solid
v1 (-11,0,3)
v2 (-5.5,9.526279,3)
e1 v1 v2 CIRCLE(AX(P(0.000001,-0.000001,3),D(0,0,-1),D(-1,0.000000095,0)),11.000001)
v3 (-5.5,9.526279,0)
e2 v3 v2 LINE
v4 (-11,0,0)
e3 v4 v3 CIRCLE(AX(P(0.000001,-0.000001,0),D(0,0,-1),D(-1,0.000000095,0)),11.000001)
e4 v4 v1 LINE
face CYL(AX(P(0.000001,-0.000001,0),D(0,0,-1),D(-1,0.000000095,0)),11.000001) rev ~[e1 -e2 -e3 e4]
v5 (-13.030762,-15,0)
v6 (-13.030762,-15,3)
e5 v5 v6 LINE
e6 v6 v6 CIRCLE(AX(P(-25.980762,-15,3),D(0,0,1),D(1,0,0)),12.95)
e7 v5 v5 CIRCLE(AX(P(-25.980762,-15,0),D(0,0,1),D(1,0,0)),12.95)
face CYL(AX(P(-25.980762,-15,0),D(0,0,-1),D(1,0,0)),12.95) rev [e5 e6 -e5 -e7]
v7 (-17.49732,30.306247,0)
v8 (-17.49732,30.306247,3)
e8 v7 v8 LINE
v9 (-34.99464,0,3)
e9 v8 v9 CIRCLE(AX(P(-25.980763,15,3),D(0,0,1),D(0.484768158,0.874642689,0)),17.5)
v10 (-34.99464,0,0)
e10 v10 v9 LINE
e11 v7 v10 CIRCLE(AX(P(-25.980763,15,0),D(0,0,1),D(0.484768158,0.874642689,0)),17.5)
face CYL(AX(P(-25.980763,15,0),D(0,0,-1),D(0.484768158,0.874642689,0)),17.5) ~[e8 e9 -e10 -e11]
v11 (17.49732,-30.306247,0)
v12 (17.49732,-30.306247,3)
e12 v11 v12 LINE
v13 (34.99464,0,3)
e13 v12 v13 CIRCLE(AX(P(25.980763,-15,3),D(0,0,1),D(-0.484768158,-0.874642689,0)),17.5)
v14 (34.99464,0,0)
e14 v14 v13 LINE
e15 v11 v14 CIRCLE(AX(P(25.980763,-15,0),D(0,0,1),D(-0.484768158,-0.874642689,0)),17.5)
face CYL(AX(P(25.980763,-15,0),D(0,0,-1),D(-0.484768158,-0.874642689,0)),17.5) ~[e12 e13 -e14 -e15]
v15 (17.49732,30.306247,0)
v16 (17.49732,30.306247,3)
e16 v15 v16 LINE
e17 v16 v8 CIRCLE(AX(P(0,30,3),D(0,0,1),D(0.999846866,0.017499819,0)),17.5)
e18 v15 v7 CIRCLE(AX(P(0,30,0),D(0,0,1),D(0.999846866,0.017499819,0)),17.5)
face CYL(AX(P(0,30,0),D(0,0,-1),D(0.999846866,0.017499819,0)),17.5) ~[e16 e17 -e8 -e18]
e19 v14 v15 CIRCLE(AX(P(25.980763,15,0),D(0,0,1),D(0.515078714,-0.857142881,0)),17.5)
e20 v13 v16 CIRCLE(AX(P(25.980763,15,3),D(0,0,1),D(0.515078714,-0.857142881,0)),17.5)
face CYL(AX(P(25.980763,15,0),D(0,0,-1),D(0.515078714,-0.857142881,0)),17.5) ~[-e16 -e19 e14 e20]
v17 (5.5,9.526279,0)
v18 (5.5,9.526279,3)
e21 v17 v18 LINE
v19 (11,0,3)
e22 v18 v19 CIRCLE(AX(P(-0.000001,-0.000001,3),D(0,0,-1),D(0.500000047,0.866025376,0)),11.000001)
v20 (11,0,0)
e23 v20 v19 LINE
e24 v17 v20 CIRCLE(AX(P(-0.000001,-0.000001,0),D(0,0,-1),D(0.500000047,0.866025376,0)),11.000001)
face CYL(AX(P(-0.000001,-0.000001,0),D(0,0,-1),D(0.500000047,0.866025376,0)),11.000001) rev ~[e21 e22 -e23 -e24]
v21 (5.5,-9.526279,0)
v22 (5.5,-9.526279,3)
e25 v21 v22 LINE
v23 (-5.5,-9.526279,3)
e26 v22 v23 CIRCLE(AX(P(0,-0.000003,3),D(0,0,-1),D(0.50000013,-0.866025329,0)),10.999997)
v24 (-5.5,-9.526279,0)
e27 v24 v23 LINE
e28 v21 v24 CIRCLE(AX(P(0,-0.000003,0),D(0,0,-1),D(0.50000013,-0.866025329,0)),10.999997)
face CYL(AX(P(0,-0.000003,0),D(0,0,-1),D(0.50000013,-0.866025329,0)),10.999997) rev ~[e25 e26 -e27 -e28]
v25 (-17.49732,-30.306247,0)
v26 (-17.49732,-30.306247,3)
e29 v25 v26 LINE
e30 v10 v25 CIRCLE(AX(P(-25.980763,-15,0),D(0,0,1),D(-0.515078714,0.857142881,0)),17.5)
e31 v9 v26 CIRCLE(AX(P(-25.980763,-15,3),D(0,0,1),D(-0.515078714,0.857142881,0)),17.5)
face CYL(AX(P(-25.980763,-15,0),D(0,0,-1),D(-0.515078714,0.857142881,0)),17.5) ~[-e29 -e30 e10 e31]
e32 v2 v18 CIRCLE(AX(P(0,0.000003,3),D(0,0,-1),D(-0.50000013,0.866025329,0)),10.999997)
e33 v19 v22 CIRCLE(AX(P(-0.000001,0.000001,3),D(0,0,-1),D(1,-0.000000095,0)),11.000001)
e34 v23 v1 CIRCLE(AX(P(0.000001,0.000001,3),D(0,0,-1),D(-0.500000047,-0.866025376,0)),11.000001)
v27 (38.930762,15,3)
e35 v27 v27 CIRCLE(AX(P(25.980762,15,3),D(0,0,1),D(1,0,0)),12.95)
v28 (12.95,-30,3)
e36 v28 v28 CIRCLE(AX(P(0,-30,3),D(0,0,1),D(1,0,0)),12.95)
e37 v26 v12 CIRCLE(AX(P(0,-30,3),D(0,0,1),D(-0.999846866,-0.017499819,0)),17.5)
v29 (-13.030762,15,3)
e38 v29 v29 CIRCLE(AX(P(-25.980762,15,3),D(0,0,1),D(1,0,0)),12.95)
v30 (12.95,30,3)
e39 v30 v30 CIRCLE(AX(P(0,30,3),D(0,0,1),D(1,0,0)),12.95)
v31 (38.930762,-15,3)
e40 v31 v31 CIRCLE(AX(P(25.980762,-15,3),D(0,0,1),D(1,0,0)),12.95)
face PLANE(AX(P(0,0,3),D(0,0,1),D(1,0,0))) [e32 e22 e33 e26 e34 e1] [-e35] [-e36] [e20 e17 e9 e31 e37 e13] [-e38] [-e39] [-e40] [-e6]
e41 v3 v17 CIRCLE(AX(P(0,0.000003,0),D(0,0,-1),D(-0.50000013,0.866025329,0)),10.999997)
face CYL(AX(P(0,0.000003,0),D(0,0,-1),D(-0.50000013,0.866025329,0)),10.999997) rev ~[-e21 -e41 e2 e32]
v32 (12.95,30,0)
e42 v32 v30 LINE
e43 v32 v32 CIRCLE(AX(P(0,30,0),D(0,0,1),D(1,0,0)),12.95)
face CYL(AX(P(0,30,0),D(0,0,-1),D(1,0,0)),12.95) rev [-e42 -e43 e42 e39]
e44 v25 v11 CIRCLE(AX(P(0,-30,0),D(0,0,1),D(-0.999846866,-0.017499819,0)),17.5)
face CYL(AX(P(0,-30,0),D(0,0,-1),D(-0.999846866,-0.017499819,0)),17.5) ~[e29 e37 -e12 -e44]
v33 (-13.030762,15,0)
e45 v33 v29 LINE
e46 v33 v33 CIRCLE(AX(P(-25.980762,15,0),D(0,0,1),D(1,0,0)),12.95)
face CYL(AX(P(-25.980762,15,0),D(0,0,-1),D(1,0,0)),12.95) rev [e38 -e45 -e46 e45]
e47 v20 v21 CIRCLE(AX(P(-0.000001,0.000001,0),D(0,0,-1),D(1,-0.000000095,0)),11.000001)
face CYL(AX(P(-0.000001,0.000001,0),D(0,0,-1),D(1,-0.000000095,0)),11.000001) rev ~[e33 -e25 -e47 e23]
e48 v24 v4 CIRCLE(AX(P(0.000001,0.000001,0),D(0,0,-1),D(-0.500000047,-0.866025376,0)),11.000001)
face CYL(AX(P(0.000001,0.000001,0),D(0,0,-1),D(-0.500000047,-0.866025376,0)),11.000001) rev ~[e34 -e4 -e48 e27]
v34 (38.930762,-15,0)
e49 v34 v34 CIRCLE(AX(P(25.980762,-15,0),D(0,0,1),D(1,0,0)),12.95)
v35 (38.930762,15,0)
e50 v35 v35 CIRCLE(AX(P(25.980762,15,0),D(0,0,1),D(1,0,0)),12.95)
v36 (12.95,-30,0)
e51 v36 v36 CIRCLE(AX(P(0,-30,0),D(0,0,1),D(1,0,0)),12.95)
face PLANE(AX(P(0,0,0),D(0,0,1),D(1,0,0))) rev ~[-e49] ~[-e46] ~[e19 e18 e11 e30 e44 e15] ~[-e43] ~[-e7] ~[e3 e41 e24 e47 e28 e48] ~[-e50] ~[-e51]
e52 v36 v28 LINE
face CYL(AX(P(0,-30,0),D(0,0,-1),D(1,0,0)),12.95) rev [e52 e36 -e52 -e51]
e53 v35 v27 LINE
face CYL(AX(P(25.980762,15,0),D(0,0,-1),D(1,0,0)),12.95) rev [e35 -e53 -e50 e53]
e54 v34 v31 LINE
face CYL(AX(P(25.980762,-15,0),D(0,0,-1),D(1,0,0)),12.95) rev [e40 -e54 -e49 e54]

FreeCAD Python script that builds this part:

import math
import FreeCAD as App
import Part
import Sketcher

doc = App.newDocument("Part")
body = doc.addObject("PartDesign::Body", "Body")

# Sketch on XY plane
sketch1 = doc.addObject("Sketcher::SketchObject", "Sketch")
body.addObject(sketch1)
sketch1.AttachmentSupport = (doc.XY_Plane, [""])
sketch1.MapMode = "FlatFace"
sketch1.addGeometry(Part.ArcOfCircle(Part.Circle(App.Vector(26, 15, 0), App.Vector(0, 0, 1), 17), math.radians(-59), math.radians(119)), False)
sketch1.addGeometry(Part.ArcOfCircle(Part.Circle(App.Vector(0, 30, 0), App.Vector(0, 0, 1), 17), math.radians(1), math.radians(179)), False)
sketch1.addGeometry(Part.ArcOfCircle(Part.Circle(App.Vector(-26, 15, 0), App.Vector(0, 0, 1), 17), math.radians(61), math.radians(239)), False)
sketch1.addGeometry(Part.ArcOfCircle(Part.Circle(App.Vector(-26, -15, 0), App.Vector(0, 0, 1), 17), math.radians(121), math.radians(299)), False)
sketch1.addGeometry(Part.ArcOfCircle(Part.Circle(App.Vector(0, -30, 0), App.Vector(0, 0, 1), 17), math.radians(-179), math.radians(-1)), False)
sketch1.addGeometry(Part.ArcOfCircle(Part.Circle(App.Vector(26, -15, 0), App.Vector(0, 0, 1), 17), math.radians(-119), math.radians(59)), False)
sketch1.addGeometry(Part.Circle(App.Vector(0, -30, 0), App.Vector(0, 0, 1), 13), False)
sketch1.addGeometry(Part.Circle(App.Vector(-26, -15, 0), App.Vector(0, 0, 1), 13), False)
sketch1.addGeometry(Part.Circle(App.Vector(26, -15, 0), App.Vector(0, 0, 1), 13), False)
sketch1.addGeometry(Part.Circle(App.Vector(-26, 15, 0), App.Vector(0, 0, 1), 13), False)
sketch1.addGeometry(Part.ArcOfCircle(Part.Circle(App.Vector(0, 0, 0), App.Vector(0, 0, 1), 11), math.radians(120), math.radians(180)), False)
sketch1.addGeometry(Part.ArcOfCircle(Part.Circle(App.Vector(0, 0, 0), App.Vector(0, 0, 1), 11), math.radians(60), math.radians(120)), False)
sketch1.addGeometry(Part.ArcOfCircle(Part.Circle(App.Vector(0, 0, 0), App.Vector(0, 0, 1), 11), math.radians(0), math.radians(60)), False)
sketch1.addGeometry(Part.ArcOfCircle(Part.Circle(App.Vector(0, 0, 0), App.Vector(0, 0, 1), 11), math.radians(-60), math.radians(0)), False)
sketch1.addGeometry(Part.ArcOfCircle(Part.Circle(App.Vector(0, 0, 0), App.Vector(0, 0, 1), 11), math.radians(-120), math.radians(-60)), False)
sketch1.addGeometry(Part.ArcOfCircle(Part.Circle(App.Vector(0, 0, 0), App.Vector(0, 0, 1), 11), math.radians(-180), math.radians(-120)), False)
sketch1.addGeometry(Part.Circle(App.Vector(0, 30, 0), App.Vector(0, 0, 1), 13), False)
sketch1.addGeometry(Part.Circle(App.Vector(26, 15, 0), App.Vector(0, 0, 1), 13), False)
sketch1.addConstraint(Sketcher.Constraint("Coincident", 0, 2, 1, 1))
sketch1.addConstraint(Sketcher.Constraint("Coincident", 1, 2, 2, 1))
sketch1.addConstraint(Sketcher.Constraint("Coincident", 2, 2, 3, 1))
sketch1.addConstraint(Sketcher.Constraint("Coincident", 3, 2, 4, 1))
sketch1.addConstraint(Sketcher.Constraint("Coincident", 4, 2, 5, 1))
sketch1.addConstraint(Sketcher.Constraint("Coincident", 5, 2, 0, 1))
sketch1.addConstraint(Sketcher.Constraint("Tangent", 10, 1, 11, 2))
sketch1.addConstraint(Sketcher.Constraint("Tangent", 11, 1, 12, 2))
sketch1.addConstraint(Sketcher.Constraint("Tangent", 12, 1, 13, 2))
sketch1.addConstraint(Sketcher.Constraint("Tangent", 13, 1, 14, 2))
sketch1.addConstraint(Sketcher.Constraint("Tangent", 14, 1, 15, 2))
sketch1.addConstraint(Sketcher.Constraint("Tangent", 15, 1, 10, 2))
sketch1.addConstraint(Sketcher.Constraint("Coincident", 10, 3, -1, 1))
sketch1.addConstraint(Sketcher.Constraint("Coincident", 12, 3, -1, 1))
sketch1.addConstraint(Sketcher.Constraint("Coincident", 6, 3, 4, 3))
sketch1.addConstraint(Sketcher.Constraint("Coincident", 7, 3, 3, 3))
sketch1.addConstraint(Sketcher.Constraint("Coincident", 8, 3, 5, 3))
sketch1.addConstraint(Sketcher.Constraint("Coincident", 9, 3, 2, 3))
sketch1.addConstraint(Sketcher.Constraint("Coincident", 16, 3, 1, 3))
sketch1.addConstraint(Sketcher.Constraint("Coincident", 17, 3, 0, 3))
sketch1.addConstraint(Sketcher.Constraint("Equal", 0, 1))
sketch1.addConstraint(Sketcher.Constraint("Equal", 1, 2))
sketch1.addConstraint(Sketcher.Constraint("Equal", 2, 3))
sketch1.addConstraint(Sketcher.Constraint("Equal", 3, 4))
sketch1.addConstraint(Sketcher.Constraint("Equal", 4, 5))
sketch1.addConstraint(Sketcher.Constraint("Equal", 6, 7))
sketch1.addConstraint(Sketcher.Constraint("Equal", 7, 8))
sketch1.addConstraint(Sketcher.Constraint("Equal", 8, 9))
sketch1.addConstraint(Sketcher.Constraint("Equal", 12, 13))
sketch1.addConstraint(Sketcher.Constraint("Equal", 9, 16))
sketch1.addConstraint(Sketcher.Constraint("Equal", 16, 17))
sketch1.addConstraint(Sketcher.Constraint("Symmetric", 0, 3, 3, 3, -1, 1))
sketch1.addConstraint(Sketcher.Constraint("Symmetric", 1, 3, 4, 3, -1, 1))
sketch1.addConstraint(Sketcher.Constraint("Symmetric", 2, 3, 5, 3, -1, 1))
sketch1.addConstraint(Sketcher.Constraint("Symmetric", 0, 3, 2, 3, -2))
sketch1.addConstraint(Sketcher.Constraint("PointOnObject", 1, 3, -2))
sketch1.addConstraint(Sketcher.Constraint("PointOnObject", 12, 1, -1))
sketch1.addConstraint(Sketcher.Constraint("PointOnObject", 15, 1, -1))
sketch1.addConstraint(Sketcher.Constraint("Horizontal", 10, 1, 11, 1))
sketch1.addConstraint(Sketcher.Constraint("Horizontal", 13, 1, 14, 1))
sketch1.addConstraint(Sketcher.Constraint("Vertical", 11, 1, 13, 1))
sketch1.addConstraint(Sketcher.Constraint("Radius", 10, 11.000001))
sketch1.addConstraint(Sketcher.Constraint("Diameter", 6, 25.9))
sketch1.addConstraint(Sketcher.Constraint("Radius", 0, 17.5))
sketch1.addConstraint(Sketcher.Constraint("DistanceY", -1, 1, 0, 3, 15.0))
sketch1.addConstraint(Sketcher.Constraint("DistanceY", -1, 1, 1, 3, 30.0))
sketch1.addConstraint(Sketcher.Constraint("DistanceX", 10, 1, 11, 1, 11.0))
sketch1.addConstraint(Sketcher.Constraint("DistanceX", 7, 3, -1, 1, 25.980762))
pad1 = doc.addObject("PartDesign::Pad", "Pad")
body.addObject(pad1)
pad1.Profile = sketch1
pad1.Length = 3

doc.recompute()
